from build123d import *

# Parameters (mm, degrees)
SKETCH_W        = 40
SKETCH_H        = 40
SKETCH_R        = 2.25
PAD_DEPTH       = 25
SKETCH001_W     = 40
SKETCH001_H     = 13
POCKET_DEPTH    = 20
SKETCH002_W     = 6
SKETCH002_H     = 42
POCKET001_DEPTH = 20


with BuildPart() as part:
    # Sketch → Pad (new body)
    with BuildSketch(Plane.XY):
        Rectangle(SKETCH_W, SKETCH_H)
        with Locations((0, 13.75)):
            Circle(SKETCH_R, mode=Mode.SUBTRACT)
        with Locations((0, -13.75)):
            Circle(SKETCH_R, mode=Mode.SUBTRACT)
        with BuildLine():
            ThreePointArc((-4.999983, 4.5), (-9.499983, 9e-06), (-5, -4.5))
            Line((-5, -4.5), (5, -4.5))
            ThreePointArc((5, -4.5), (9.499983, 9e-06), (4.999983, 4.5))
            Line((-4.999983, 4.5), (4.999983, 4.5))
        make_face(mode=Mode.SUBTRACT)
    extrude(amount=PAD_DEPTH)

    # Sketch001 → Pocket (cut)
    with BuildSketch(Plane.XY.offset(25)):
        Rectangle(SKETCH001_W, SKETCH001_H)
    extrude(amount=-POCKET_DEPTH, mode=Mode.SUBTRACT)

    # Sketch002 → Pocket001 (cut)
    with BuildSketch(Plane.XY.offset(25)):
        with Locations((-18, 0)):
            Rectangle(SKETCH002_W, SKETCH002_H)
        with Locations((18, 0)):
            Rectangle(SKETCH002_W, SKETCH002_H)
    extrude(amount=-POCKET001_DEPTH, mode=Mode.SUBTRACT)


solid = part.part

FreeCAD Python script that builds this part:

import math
import FreeCAD as App
import Part
import Sketcher
Q = App.Units.Quantity

doc = App.newDocument("Part")
body = doc.addObject("PartDesign::Body", "Body")

sketch1 = doc.addObject("Sketcher::SketchObject", "Sketch")
body.addObject(sketch1)
sketch1.AttachmentSupport = (doc.XY_Plane, [""])
sketch1.MapMode = "FlatFace"
sketch1.addGeometry(Part.LineSegment(App.Vector(-20, 20, 0), App.Vector(-20, -20, 0)), False)
sketch1.addGeometry(Part.LineSegment(App.Vector(-20, -20, 0), App.Vector(20, -20, 0)), False)
sketch1.addGeometry(Part.LineSegment(App.Vector(20, -20, 0), App.Vector(20, 20, 0)), False)
sketch1.addGeometry(Part.LineSegment(App.Vector(20, 20, 0), App.Vector(-20, 20, 0)), False)
sketch1.addGeometry(Part.Circle(App.Vector(0, -13.8, 0), App.Vector(0, 0, 1), 2.2), False)
sketch1.addGeometry(Part.ArcOfCircle(Part.Circle(App.Vector(-5, 0, 0), App.Vector(0, 0, 1), 4.5), math.radians(90), math.radians(270)), False)
sketch1.addGeometry(Part.LineSegment(App.Vector(-5, 4.5, 0), App.Vector(5, 4.5, 0)), False)
sketch1.addGeometry(Part.ArcOfCircle(Part.Circle(App.Vector(5, 0, 0), App.Vector(0, 0, 1), 4.5), math.radians(-90), math.radians(90)), False)
sketch1.addGeometry(Part.LineSegment(App.Vector(5, -4.5, 0), App.Vector(-5, -4.5, 0)), False)
sketch1.addGeometry(Part.Circle(App.Vector(0, 13.8, 0), App.Vector(0, 0, 1), 2.2), False)
sketch1.addConstraint(Sketcher.Constraint("Coincident", 0, 2, 1, 1))
sketch1.addConstraint(Sketcher.Constraint("Coincident", 1, 2, 2, 1))
sketch1.addConstraint(Sketcher.Constraint("Coincident", 2, 2, 3, 1))
sketch1.addConstraint(Sketcher.Constraint("Coincident", 3, 2, 0, 1))
sketch1.addConstraint(Sketcher.Constraint("Tangent", 5, 1, 6, 1))
sketch1.addConstraint(Sketcher.Constraint("Tangent", 6, 2, 7, 2))
sketch1.addConstraint(Sketcher.Constraint("Coincident", 7, 1, 8, 1))
sketch1.addConstraint(Sketcher.Constraint("Coincident", 8, 2, 5, 2))
sketch1.addConstraint(Sketcher.Constraint("Vertical", 0))
sketch1.addConstraint(Sketcher.Constraint("Horizontal", 1))
sketch1.addConstraint(Sketcher.Constraint("Vertical", 2))
sketch1.addConstraint(Sketcher.Constraint("Horizontal", 3))
sketch1.addConstraint(Sketcher.Constraint("Horizontal", 6))
sketch1.addConstraint(Sketcher.Constraint("Horizontal", 8))
sketch1.addConstraint(Sketcher.Constraint("Equal", 4, 9))
sketch1.addConstraint(Sketcher.Constraint("Symmetric", 5, 3, 7, 3, -1, 1))
sketch1.addConstraint(Sketcher.Constraint("Symmetric", 4, 3, 9, 3, -1, 1))
sketch1.addConstraint(Sketcher.Constraint("Symmetric", 0, 2, 2, 2, -1, 1))
sketch1.addConstraint(Sketcher.Constraint("PointOnObject", 4, 3, -2))
sketch1.addConstraint(Sketcher.Constraint("Equal", 3, 0))
sketch1.addConstraint(Sketcher.Constraint("Diameter", 4, Q("4.5 mm")))
sketch1.addConstraint(Sketcher.Constraint("Radius", 5, Q("4.5 mm")))
sketch1.addConstraint(Sketcher.Constraint("DistanceX", 1, 1, 1, 2, Q("40 mm")))
sketch1.addConstraint(Sketcher.Constraint("DistanceX", 8, 2, 8, 1, Q("10 mm")))
sketch1.addConstraint(Sketcher.Constraint("DistanceX", -1, 1, 7, 1, Q("5 mm")))
sketch1.addConstraint(Sketcher.Constraint("DistanceY", 4, 3, 9, 3, Q("27.5 mm")))
sketch1.addConstraint(Sketcher.Constraint("DistanceX", 6, 1, 6, 2, Q("9.999966 mm")))
pad1 = doc.addObject("PartDesign::Pad", "Pad")
body.addObject(pad1)
pad1.Profile = sketch1
pad1.Length = 25

sketch2 = doc.addObject("Sketcher::SketchObject", "Sketch001")
body.addObject(sketch2)
sketch2.AttachmentSupport = (doc.XY_Plane, [""])
sketch2.MapMode = "FlatFace"
sketch2.AttachmentOffset = App.Placement(App.Vector(0, 0, 25), App.Rotation())
sketch2.addGeometry(Part.LineSegment(App.Vector(-20, 6, 0), App.Vector(-20, -6, 0)), False)
sketch2.addGeometry(Part.LineSegment(App.Vector(-20, -6, 0), App.Vector(20, -6, 0)), False)
sketch2.addGeometry(Part.LineSegment(App.Vector(20, -6, 0), App.Vector(20, 6, 0)), False)
sketch2.addGeometry(Part.LineSegment(App.Vector(20, 6, 0), App.Vector(-20, 6, 0)), False)
sketch2.addConstraint(Sketcher.Constraint("Coincident", 0, 2, 1, 1))
sketch2.addConstraint(Sketcher.Constraint("Coincident", 1, 2, 2, 1))
sketch2.addConstraint(Sketcher.Constraint("Coincident", 2, 2, 3, 1))
sketch2.addConstraint(Sketcher.Constraint("Coincident", 3, 2, 0, 1))
sketch2.addConstraint(Sketcher.Constraint("Vertical", 0))
sketch2.addConstraint(Sketcher.Constraint("Horizontal", 1))
sketch2.addConstraint(Sketcher.Constraint("Vertical", 2))
sketch2.addConstraint(Sketcher.Constraint("Horizontal", 3))
sketch2.addConstraint(Sketcher.Constraint("Symmetric", 0, 2, 2, 2, -1, 1))
sketch2.addConstraint(Sketcher.Constraint("DistanceX", 1, 1, 1, 2, Q("40 mm")))
sketch2.addConstraint(Sketcher.Constraint("DistanceY", 0, 2, 0, 1, Q("13 mm")))
pocket1 = doc.addObject("PartDesign::Pocket", "Pocket")
body.addObject(pocket1)
pocket1.Profile = sketch2
pocket1.Length = 20

sketch3 = doc.addObject("Sketcher::SketchObject", "Sketch002")
body.addObject(sketch3)
sketch3.AttachmentSupport = (doc.XY_Plane, [""])
sketch3.MapMode = "FlatFace"
sketch3.AttachmentOffset = App.Placement(App.Vector(0, 0, 25), App.Rotation())
sketch3.addGeometry(Part.LineSegment(App.Vector(-21, 21, 0), App.Vector(-21, -21, 0)), False)
sketch3.addGeometry(Part.LineSegment(App.Vector(-21, -21, 0), App.Vector(-15, -21, 0)), False)
sketch3.addGeometry(Part.LineSegment(App.Vector(-15, -21, 0), App.Vector(-15, 21, 0)), False)
sketch3.addGeometry(Part.LineSegment(App.Vector(-15, 21, 0), App.Vector(-21, 21, 0)), False)
sketch3.addGeometry(Part.LineSegment(App.Vector(15, 21, 0), App.Vector(15, -21, 0)), False)
sketch3.addGeometry(Part.LineSegment(App.Vector(15, -21, 0), App.Vector(21, -21, 0)), False)
sketch3.addGeometry(Part.LineSegment(App.Vector(21, -21, 0), App.Vector(21, 21, 0)), False)
sketch3.addGeometry(Part.LineSegment(App.Vector(21, 21, 0), App.Vector(15, 21, 0)), False)
sketch3.addConstraint(Sketcher.Constraint("Coincident", 0, 2, 1, 1))
sketch3.addConstraint(Sketcher.Constraint("Coincident", 1, 2, 2, 1))
sketch3.addConstraint(Sketcher.Constraint("Coincident", 2, 2, 3, 1))
sketch3.addConstraint(Sketcher.Constraint("Coincident", 3, 2, 0, 1))
sketch3.addConstraint(Sketcher.Constraint("Coincident", 4, 2, 5, 1))
sketch3.addConstraint(Sketcher.Constraint("Coincident", 5, 2, 6, 1))
sketch3.addConstraint(Sketcher.Constraint("Coincident", 6, 2, 7, 1))
sketch3.addConstraint(Sketcher.Constraint("Coincident", 7, 2, 4, 1))
sketch3.addConstraint(Sketcher.Constraint("Vertical", 0))
sketch3.addConstraint(Sketcher.Constraint("Horizontal", 1))
sketch3.addConstraint(Sketcher.Constraint("Vertical", 2))
sketch3.addConstraint(Sketcher.Constraint("Horizontal", 3))
sketch3.addConstraint(Sketcher.Constraint("Vertical", 4))
sketch3.addConstraint(Sketcher.Constraint("Horizontal", 5))
sketch3.addConstraint(Sketcher.Constraint("Vertical", 6))
sketch3.addConstraint(Sketcher.Constraint("Horizontal", 7))
sketch3.addConstraint(Sketcher.Constraint("Symmetric", 2, 2, 4, 2, -1, 1))
sketch3.addConstraint(Sketcher.Constraint("Symmetric", 0, 2, 6, 2, -1, 1))
sketch3.addConstraint(Sketcher.Constraint("Horizontal", 1, 2, 4, 2))
sketch3.addConstraint(Sketcher.Constraint("DistanceX", 1, 1, 1, 2, Q("6 mm")))
sketch3.addConstraint(Sketcher.Constraint("DistanceY", 0, 2, 0, 1, Q("42 mm")))
sketch3.addConstraint(Sketcher.Constraint("DistanceX", 0, 2, -1, 1, Q("21 mm")))
pocket2 = doc.addObject("PartDesign::Pocket", "Pocket001")
body.addObject(pocket2)
pocket2.Profile = sketch3
pocket2.Length = 20

doc.recompute()
